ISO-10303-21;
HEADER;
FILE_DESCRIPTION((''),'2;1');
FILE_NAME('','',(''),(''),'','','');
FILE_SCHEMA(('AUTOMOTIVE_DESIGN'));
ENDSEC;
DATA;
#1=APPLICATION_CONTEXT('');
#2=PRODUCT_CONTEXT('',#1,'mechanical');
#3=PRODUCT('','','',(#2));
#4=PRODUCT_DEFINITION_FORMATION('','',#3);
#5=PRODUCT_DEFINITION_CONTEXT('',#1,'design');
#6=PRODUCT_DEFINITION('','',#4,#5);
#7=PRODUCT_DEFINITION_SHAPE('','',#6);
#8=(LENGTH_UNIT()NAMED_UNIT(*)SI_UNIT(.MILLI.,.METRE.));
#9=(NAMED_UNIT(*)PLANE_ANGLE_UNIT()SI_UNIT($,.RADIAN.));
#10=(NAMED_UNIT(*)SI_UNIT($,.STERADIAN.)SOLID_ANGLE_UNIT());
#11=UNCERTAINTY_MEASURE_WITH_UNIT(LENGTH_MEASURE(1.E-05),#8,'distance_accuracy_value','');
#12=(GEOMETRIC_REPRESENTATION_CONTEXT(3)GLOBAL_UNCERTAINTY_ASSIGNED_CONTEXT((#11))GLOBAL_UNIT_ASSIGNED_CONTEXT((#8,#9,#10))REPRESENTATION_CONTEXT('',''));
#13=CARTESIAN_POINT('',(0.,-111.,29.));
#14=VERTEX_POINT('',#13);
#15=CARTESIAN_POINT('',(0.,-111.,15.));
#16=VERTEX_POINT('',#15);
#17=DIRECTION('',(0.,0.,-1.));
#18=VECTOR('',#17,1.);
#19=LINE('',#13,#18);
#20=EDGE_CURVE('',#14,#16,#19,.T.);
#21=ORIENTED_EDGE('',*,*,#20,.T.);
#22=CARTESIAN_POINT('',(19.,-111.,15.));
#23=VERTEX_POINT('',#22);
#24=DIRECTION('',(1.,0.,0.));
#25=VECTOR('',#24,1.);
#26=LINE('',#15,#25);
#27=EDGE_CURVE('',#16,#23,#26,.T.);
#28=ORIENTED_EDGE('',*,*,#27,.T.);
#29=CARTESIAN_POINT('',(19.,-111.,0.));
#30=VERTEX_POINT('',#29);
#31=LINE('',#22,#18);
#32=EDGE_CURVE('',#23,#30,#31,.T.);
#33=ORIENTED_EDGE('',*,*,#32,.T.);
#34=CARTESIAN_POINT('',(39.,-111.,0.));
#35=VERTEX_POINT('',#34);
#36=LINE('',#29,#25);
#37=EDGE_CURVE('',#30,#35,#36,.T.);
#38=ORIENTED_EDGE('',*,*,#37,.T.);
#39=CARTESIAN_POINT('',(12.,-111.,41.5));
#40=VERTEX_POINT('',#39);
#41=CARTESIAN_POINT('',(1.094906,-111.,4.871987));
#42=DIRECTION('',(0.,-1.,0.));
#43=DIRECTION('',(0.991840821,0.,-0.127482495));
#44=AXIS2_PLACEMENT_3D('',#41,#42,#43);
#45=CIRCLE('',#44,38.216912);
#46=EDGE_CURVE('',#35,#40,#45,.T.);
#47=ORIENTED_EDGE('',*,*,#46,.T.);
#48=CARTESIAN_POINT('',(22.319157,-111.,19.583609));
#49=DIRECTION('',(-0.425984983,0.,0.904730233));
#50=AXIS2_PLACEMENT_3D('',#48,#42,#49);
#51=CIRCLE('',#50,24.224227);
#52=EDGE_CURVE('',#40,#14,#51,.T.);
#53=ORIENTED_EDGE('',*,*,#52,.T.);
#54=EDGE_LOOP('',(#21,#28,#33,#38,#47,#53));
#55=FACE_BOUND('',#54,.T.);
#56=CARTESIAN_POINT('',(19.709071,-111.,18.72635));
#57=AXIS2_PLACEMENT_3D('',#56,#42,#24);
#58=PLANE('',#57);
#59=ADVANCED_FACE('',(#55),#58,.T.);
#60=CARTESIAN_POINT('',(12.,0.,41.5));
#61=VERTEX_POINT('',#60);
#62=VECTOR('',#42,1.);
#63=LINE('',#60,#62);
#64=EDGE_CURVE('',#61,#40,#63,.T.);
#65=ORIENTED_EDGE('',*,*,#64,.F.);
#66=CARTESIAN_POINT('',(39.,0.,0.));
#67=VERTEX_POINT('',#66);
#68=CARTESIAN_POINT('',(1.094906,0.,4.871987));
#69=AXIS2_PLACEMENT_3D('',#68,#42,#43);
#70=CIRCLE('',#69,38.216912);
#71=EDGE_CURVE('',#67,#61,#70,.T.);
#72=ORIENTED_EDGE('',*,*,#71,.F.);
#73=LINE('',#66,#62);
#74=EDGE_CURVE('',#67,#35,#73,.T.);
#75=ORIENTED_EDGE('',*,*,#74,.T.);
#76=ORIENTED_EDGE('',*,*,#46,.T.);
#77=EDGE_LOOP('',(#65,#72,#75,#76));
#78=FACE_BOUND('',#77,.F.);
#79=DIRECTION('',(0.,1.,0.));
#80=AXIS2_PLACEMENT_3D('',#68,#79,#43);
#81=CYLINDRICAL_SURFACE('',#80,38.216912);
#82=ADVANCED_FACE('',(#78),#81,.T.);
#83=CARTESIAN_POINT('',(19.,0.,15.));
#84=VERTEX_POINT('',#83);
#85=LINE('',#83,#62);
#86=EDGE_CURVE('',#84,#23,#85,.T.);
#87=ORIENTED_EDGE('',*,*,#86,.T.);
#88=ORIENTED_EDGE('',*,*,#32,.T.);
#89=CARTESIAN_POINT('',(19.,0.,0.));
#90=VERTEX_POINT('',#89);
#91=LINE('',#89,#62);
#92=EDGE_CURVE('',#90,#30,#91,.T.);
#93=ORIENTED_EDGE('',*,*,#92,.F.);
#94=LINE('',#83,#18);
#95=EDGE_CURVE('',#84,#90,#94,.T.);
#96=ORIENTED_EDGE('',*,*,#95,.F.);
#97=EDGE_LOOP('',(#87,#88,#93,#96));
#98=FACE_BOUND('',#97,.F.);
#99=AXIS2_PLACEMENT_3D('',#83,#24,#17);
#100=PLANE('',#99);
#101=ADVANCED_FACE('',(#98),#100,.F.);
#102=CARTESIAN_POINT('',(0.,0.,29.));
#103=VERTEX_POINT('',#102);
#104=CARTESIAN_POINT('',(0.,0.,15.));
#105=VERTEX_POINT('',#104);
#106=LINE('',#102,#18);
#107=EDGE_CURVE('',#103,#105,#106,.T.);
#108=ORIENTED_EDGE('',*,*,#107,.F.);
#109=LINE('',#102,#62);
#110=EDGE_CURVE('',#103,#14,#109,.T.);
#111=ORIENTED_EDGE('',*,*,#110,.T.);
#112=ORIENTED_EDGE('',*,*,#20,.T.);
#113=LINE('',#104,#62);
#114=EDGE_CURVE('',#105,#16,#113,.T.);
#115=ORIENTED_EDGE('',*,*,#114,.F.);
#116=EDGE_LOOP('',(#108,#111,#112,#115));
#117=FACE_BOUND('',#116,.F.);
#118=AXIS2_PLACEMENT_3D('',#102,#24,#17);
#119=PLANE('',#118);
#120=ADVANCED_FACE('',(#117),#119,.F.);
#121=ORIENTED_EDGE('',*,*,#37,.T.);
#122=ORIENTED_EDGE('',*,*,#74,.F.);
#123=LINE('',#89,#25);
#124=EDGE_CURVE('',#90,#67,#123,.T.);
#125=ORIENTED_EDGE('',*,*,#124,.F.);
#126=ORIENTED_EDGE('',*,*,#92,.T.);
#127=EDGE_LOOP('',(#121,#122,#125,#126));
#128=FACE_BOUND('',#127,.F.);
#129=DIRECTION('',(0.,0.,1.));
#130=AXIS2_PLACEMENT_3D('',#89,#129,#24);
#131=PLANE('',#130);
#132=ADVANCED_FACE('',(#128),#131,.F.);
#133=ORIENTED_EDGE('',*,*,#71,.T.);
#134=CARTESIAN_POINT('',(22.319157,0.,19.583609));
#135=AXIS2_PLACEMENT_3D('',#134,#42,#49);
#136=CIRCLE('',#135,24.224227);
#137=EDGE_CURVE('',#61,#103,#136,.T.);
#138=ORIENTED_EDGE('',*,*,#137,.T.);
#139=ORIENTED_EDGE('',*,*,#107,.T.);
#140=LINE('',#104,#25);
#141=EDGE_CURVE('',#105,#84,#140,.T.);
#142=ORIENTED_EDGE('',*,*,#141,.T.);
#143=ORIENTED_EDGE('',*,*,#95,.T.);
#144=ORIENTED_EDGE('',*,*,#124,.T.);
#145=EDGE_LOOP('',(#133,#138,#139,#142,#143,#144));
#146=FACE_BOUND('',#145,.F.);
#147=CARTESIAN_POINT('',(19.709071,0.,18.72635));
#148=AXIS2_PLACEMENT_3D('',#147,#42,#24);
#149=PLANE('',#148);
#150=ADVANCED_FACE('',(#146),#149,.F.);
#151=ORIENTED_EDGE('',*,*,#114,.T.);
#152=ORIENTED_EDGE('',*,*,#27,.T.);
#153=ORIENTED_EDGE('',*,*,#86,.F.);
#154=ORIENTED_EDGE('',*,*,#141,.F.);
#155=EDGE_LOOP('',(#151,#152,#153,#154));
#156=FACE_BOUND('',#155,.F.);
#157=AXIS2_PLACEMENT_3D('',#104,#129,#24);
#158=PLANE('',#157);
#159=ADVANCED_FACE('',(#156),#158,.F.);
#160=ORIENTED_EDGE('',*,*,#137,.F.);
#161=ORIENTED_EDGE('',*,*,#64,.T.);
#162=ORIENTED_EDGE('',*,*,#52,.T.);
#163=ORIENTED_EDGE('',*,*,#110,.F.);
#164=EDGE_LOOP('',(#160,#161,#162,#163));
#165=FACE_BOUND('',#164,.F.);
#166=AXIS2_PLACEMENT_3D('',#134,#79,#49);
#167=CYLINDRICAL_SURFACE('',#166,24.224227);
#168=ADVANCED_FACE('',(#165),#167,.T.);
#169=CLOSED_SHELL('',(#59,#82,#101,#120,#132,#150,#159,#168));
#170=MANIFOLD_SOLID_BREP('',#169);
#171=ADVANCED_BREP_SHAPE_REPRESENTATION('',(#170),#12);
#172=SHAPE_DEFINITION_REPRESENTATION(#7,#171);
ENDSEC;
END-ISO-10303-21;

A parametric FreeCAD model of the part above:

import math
import FreeCAD as App
import Part
import Sketcher

V = App.Vector
Q = App.Units.Quantity

doc = App.newDocument("Part")
body = doc.addObject("PartDesign::Body", "Body")

# Sketch on XZ plane
sketch1 = body.newObject("Sketcher::SketchObject", "Sketch")
sketch1.AttachmentSupport = (doc.getObject("XZ_Plane"), [""])
sketch1.MapMode = "FlatFace"
sketch1.addGeometry([
    Part.LineSegment(V(0, 29, 0), V(0, 15, 0)),  # 0
    Part.LineSegment(V(0, 15, 0), V(19, 15, 0)),  # 1
    Part.LineSegment(V(19, 15, 0), V(19, 0, 0)),  # 2
    Part.LineSegment(V(19, 0, 0), V(39, 0, 0)),  # 3
    Part.ArcOfCircle(Part.Circle(V(1.094906, 4.871987, 0), V(0, 0, 1), 38.216912), math.radians(-7.324139), math.radians(73.420389)),  # 4
    Part.ArcOfCircle(Part.Circle(V(22.319157, 19.583609, 0), V(0, 0, 1), 24.224227), math.radians(115.213026), math.radians(157.125253)),  # 5
], False)
sketch1.addConstraint([
    Sketcher.Constraint("Coincident", 0, 2, 1, 1),
    Sketcher.Constraint("Coincident", 1, 2, 2, 1),
    Sketcher.Constraint("Coincident", 2, 2, 3, 1),
    Sketcher.Constraint("Coincident", 3, 2, 4, 1),
    Sketcher.Constraint("Coincident", 4, 2, 5, 1),
    Sketcher.Constraint("Coincident", 5, 2, 0, 1),
    Sketcher.Constraint("Vertical", 0),
    Sketcher.Constraint("Horizontal", 1),
    Sketcher.Constraint("Vertical", 2),
    Sketcher.Constraint("Horizontal", 3),
    Sketcher.Constraint("PointOnObject", 0, 2, -2),
    Sketcher.Constraint("PointOnObject", 2, 2, -1),
    Sketcher.Constraint("DistanceX", 1, 1, 1, 2, Q("19 mm")),
    Sketcher.Constraint("DistanceX", 3, 1, 3, 2, Q("20 mm")),
    Sketcher.Constraint("DistanceY", 0, 2, 0, 1, Q("14 mm")),
    Sketcher.Constraint("DistanceY", 2, 2, 2, 1, Q("15 mm")),
    Sketcher.Constraint("DistanceX", -1, 1, 4, 2, Q("12 mm")),
    Sketcher.Constraint("DistanceY", -1, 1, 4, 2, Q("41.5 mm")),
    Sketcher.Constraint("Radius", 4, Q("38.216912 mm")),
    Sketcher.Constraint("Radius", 5, Q("24.224227 mm")),
])
pad1 = body.newObject("PartDesign::Pad", "Pad")
pad1.Profile = sketch1
pad1.Length = 111

doc.recompute()
